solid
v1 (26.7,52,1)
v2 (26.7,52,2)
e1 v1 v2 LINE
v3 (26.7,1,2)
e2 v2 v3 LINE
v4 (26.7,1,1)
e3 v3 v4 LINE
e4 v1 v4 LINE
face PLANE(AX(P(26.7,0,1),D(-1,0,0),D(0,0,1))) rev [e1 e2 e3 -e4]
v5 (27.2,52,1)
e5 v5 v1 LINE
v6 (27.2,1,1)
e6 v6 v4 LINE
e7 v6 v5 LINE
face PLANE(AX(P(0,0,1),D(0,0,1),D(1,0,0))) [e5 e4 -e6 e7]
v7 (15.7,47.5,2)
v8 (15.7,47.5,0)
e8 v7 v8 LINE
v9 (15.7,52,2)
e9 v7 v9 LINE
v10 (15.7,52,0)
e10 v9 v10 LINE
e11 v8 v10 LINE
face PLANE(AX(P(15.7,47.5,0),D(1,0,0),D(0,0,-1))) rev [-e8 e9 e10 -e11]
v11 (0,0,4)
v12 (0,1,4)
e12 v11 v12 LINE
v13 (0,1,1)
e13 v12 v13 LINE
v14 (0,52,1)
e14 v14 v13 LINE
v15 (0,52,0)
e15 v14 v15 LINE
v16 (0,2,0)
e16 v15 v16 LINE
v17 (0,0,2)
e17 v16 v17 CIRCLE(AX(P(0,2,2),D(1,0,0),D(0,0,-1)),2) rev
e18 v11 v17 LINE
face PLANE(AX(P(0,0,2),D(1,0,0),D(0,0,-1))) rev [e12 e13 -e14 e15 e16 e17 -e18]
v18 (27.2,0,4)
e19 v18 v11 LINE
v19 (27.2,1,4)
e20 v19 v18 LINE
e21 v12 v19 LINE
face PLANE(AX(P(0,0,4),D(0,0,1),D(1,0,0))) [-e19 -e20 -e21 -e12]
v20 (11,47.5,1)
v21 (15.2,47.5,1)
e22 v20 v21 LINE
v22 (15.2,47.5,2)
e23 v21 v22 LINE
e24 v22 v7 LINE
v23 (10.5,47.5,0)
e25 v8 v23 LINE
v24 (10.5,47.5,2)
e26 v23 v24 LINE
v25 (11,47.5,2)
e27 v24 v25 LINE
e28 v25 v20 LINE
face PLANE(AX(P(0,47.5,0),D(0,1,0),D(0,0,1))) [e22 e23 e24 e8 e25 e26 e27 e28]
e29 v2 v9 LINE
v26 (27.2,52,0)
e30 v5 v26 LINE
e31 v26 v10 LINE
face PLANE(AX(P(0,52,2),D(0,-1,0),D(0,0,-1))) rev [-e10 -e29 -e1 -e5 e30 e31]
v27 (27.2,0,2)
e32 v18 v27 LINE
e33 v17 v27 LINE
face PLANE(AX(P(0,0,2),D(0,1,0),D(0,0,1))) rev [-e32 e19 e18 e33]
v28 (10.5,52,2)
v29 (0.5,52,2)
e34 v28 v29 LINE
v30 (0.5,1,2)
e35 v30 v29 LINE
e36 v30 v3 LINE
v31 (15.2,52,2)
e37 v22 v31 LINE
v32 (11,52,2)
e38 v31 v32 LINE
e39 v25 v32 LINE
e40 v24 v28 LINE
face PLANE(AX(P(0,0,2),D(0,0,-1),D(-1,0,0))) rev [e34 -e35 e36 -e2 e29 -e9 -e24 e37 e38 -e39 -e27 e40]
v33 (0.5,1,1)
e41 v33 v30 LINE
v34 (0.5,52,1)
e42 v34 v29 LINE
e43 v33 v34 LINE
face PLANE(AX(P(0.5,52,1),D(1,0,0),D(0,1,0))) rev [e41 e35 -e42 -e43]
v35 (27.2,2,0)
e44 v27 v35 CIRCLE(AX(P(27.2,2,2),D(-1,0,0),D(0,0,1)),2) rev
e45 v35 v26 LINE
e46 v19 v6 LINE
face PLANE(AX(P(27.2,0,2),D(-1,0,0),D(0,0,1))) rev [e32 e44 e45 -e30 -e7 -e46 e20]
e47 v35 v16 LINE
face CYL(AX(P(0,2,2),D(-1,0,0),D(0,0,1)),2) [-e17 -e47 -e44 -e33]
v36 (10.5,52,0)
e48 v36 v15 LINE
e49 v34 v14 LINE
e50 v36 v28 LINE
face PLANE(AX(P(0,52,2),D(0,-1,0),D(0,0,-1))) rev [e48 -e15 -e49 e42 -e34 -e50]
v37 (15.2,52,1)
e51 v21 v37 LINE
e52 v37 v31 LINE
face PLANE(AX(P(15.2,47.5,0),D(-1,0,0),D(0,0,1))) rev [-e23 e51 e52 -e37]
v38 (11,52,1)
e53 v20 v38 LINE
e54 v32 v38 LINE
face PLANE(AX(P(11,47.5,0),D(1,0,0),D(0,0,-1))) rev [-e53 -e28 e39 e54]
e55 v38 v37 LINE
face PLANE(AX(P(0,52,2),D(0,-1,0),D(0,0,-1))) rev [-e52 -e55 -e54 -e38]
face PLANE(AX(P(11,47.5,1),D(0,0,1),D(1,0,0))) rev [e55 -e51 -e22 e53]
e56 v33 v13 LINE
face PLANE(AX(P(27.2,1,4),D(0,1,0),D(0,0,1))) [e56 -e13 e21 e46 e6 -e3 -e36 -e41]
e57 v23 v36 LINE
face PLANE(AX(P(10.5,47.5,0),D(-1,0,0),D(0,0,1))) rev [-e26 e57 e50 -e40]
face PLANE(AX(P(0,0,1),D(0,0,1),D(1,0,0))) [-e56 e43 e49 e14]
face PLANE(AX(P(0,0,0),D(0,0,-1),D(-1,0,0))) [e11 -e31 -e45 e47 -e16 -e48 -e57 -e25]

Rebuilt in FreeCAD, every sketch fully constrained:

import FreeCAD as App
import Part
import Sketcher

V = App.Vector


def edges_at(feature, points):
    """Names of the edges that pass closest to the given points."""
    edges = feature.Shape.Edges
    near = lambda p: min(range(len(edges)), key=lambda i: edges[i].distToShape(Part.Vertex(*p))[0])
    return sorted({f"Edge{near(p) + 1}" for p in points})


def add_polygon(sketch, points):
    """Adds a closed chain of lines whose ends are joined by coincident constraints."""
    first, n = sketch.GeometryCount, len(points)
    for a, b in zip(points, points[1:] + points[:1]):
        sketch.addGeometry(Part.LineSegment(App.Vector(*a, 0), App.Vector(*b, 0)), False)
    for i in range(n):
        sketch.addConstraint(Sketcher.Constraint("Coincident", first + i, 2, first + (i + 1) % n, 1))

doc = App.newDocument("Part")
body = doc.addObject("PartDesign::Body", "Body")

# Sketch on XY plane
sketch1 = body.newObject("Sketcher::SketchObject", "Sketch")
sketch1.AttachmentSupport = (doc.getObject("XY_Plane"), [""])
sketch1.MapMode = "FlatFace"
add_polygon(sketch1, [(0, 52), (0, 0), (27, 0), (27, 52)])  # lines 0-3
sketch1.addConstraint([
    Sketcher.Constraint("Vertical", 0),
    Sketcher.Constraint("Horizontal", 1),
    Sketcher.Constraint("Vertical", 2),
    Sketcher.Constraint("Horizontal", 3),
    Sketcher.Constraint("Coincident", 0, 2, -1, 1),
    Sketcher.Constraint("DistanceY", 0, 2, 0, 1, 52.0),
    Sketcher.Constraint("DistanceX", 1, 1, 1, 2, 27.2),
])
pad1 = body.newObject("PartDesign::Pad", "Pad")
pad1.Profile = sketch1
pad1.Length = 2

# Sketch on XY plane
sketch2 = body.newObject("Sketcher::SketchObject", "Sketch001")
sketch2.AttachmentSupport = (doc.getObject("XY_Plane"), [""])
sketch2.MapMode = "FlatFace"
sketch2.AttachmentOffset = App.Placement(V(0, 0, 2), App.Rotation())
add_polygon(sketch2, [(0, 52), (0, 0), (0.5, 0), (0.5, 52)])  # lines 0-3
sketch2.addConstraint([
    Sketcher.Constraint("Vertical", 0),
    Sketcher.Constraint("Horizontal", 1),
    Sketcher.Constraint("Vertical", 2),
    Sketcher.Constraint("Horizontal", 3),
    Sketcher.Constraint("Coincident", 0, 2, -1, 1),
    Sketcher.Constraint("DistanceY", 0, 2, 0, 1, 52.0),
    Sketcher.Constraint("DistanceX", 1, 1, 1, 2, 0.5),
])
pocket1 = body.newObject("PartDesign::Pocket", "Pocket")
pocket1.Profile = sketch2
pocket1.Length = 1

# Sketch on XY plane
sketch3 = body.newObject("Sketcher::SketchObject", "Sketch002")
sketch3.AttachmentSupport = (doc.getObject("XY_Plane"), [""])
sketch3.MapMode = "FlatFace"
sketch3.AttachmentOffset = App.Placement(V(0, 0, 2), App.Rotation())
add_polygon(sketch3, [(26.7, 52), (26.7, 0), (27.2, 0), (27.2, 52)])  # lines 0-3
sketch3.addConstraint([
    Sketcher.Constraint("Vertical", 0),
    Sketcher.Constraint("Horizontal", 1),
    Sketcher.Constraint("Vertical", 2),
    Sketcher.Constraint("Horizontal", 3),
    Sketcher.Constraint("PointOnObject", 0, 2, -1),
    Sketcher.Constraint("DistanceY", 0, 2, 0, 1, 52.0),
    Sketcher.Constraint("DistanceX", 1, 1, 1, 2, 0.5),
    Sketcher.Constraint("DistanceX", -1, 1, 0, 2, 26.7),
])
pocket2 = body.newObject("PartDesign::Pocket", "Pocket001")
pocket2.Profile = sketch3
pocket2.Length = 1

# Sketch on XZ plane
sketch4 = body.newObject("Sketcher::SketchObject", "Sketch003")
sketch4.AttachmentSupport = (doc.getObject("XZ_Plane"), [""])
sketch4.MapMode = "FlatFace"
sketch4.AttachmentOffset = App.Placement(V(0, 0, -52), App.Rotation())
add_polygon(sketch4, [(10.5, 0), (10.5, 2), (11, 2), (11, 0)])  # lines 0-3
sketch4.addConstraint([
    Sketcher.Constraint("Vertical", 0),
    Sketcher.Constraint("Horizontal", 1),
    Sketcher.Constraint("Vertical", 2),
    Sketcher.Constraint("Horizontal", 3),
    Sketcher.Constraint("PointOnObject", 2, 2, -1),
    Sketcher.Constraint("DistanceY", 0, 1, 0, 2, 2.0),
    Sketcher.Constraint("DistanceX", 1, 1, 1, 2, 0.5),
    Sketcher.Constraint("DistanceX", -1, 1, 1, 2, 11.0),
])
pocket3 = body.newObject("PartDesign::Pocket", "Pocket002")
pocket3.Profile = sketch4
pocket3.Length = 4.5
pocket3.Reversed = True

# Sketch on XZ plane
sketch5 = body.newObject("Sketcher::SketchObject", "Sketch004")
sketch5.AttachmentSupport = (doc.getObject("XZ_Plane"), [""])
sketch5.MapMode = "FlatFace"
sketch5.AttachmentOffset = App.Placement(V(0, 0, -52), App.Rotation())
add_polygon(sketch5, [(15.2, 0), (15.2, 2), (15.7, 2), (15.7, 0)])  # lines 0-3
sketch5.addConstraint([
    Sketcher.Constraint("Vertical", 0),
    Sketcher.Constraint("Horizontal", 1),
    Sketcher.Constraint("Vertical", 2),
    Sketcher.Constraint("Horizontal", 3),
    Sketcher.Constraint("PointOnObject", 2, 2, -1),
    Sketcher.Constraint("DistanceY", 0, 1, 0, 2, 2.0),
    Sketcher.Constraint("DistanceX", 1, 1, 1, 2, 0.5),
    Sketcher.Constraint("DistanceX", -1, 1, 0, 2, 15.2),
])
pocket4 = body.newObject("PartDesign::Pocket", "Pocket003")
pocket4.Profile = sketch5
pocket4.Length = 4.5
pocket4.Reversed = True

# Sketch on XZ plane
sketch6 = body.newObject("Sketcher::SketchObject", "Sketch005")
sketch6.AttachmentSupport = (doc.getObject("XZ_Plane"), [""])
sketch6.MapMode = "FlatFace"
sketch6.AttachmentOffset = App.Placement(V(0, 0, -52), App.Rotation())
add_polygon(sketch6, [(11, 0), (11, 1), (15.2, 1), (15.2, 0)])  # lines 0-3
sketch6.addConstraint([
    Sketcher.Constraint("Vertical", 0),
    Sketcher.Constraint("Horizontal", 1),
    Sketcher.Constraint("Vertical", 2),
    Sketcher.Constraint("Horizontal", 3),
    Sketcher.Constraint("PointOnObject", 2, 2, -1),
    Sketcher.Constraint("DistanceY", 0, 1, 0, 2, 1.0),
    Sketcher.Constraint("DistanceX", 1, 1, 1, 2, 4.2),
    Sketcher.Constraint("DistanceX", -1, 1, 0, 2, 11.0),
])
pocket5 = body.newObject("PartDesign::Pocket", "Pocket004")
pocket5.Profile = sketch6
pocket5.Length = 4.5
pocket5.Reversed = True

# Sketch on XY plane
sketch7 = body.newObject("Sketcher::SketchObject", "Sketch006")
sketch7.AttachmentSupport = (doc.getObject("XY_Plane"), [""])
sketch7.MapMode = "FlatFace"
add_polygon(sketch7, [(27.2, 1), (27.2, 0), (0, 0), (0, 1)])  # lines 0-3
sketch7.addConstraint([
    Sketcher.Constraint("Vertical", 0),
    Sketcher.Constraint("Horizontal", 1),
    Sketcher.Constraint("Vertical", 2),
    Sketcher.Constraint("Horizontal", 3),
    Sketcher.Constraint("Coincident", 1, 2, -1, 1),
    Sketcher.Constraint("DistanceY", 0, 2, 0, 1, 1.0),
    Sketcher.Constraint("DistanceX", 1, 2, 1, 1, 27.2),
])
pad2 = body.newObject("PartDesign::Pad", "Pad001")
pad2.Profile = sketch7
pad2.Length = 4
doc.recompute()

fillet = body.newObject("PartDesign::Fillet", "Fillet")
fillet.Base = (pad2, edges_at(pad2, [(13.6, 0, 0)]))
fillet.Radius = 2

doc.recompute()
